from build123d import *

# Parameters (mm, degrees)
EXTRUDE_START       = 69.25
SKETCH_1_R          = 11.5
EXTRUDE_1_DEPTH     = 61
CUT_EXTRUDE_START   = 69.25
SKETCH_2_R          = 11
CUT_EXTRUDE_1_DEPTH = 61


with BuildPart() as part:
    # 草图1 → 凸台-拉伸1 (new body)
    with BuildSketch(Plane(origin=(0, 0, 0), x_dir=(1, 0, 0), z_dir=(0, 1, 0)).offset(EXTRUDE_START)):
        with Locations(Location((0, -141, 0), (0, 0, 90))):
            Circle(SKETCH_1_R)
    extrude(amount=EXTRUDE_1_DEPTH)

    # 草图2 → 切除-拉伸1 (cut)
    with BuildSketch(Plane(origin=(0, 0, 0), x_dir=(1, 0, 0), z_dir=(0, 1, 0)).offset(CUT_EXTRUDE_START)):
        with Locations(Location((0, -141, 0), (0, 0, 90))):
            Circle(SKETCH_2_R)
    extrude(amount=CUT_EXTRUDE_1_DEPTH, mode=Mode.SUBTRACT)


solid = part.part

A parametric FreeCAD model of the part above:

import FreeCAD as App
import Part
import Sketcher

doc = App.newDocument("Part")
params = doc.addObject("Spreadsheet::Sheet", "Params")
for row, (alias, value) in enumerate([
    ("sketch1_diameter", "23 mm"),
    ("pad1_length", "61 mm"),
    ("sketch2_diameter", "22 mm"),
    ("pocket1_length", "61 mm"),
], start=1):
    params.set(f"A{row}", alias)
    params.set(f"B{row}", "=" + value)
    params.setAlias(f"B{row}", alias)

body = doc.addObject("PartDesign::Body", "Body")

sketch1 = doc.addObject("Sketcher::SketchObject", "Sketch")
body.addObject(sketch1)
sketch1.AttachmentSupport = (doc.XZ_Plane, [""])
sketch1.MapMode = "FlatFace"
sketch1.AttachmentOffset = App.Placement(App.Vector(0, 0, -69.25), App.Rotation())
sketch1.addGeometry(Part.Circle(App.Vector(0, 141, 0), App.Vector(0, 0, 1), 12), False)
sketch1.addConstraint([
    Sketcher.Constraint("PointOnObject", 0, 3, -2),
    Sketcher.Constraint("Diameter", 0, 23.0),
    Sketcher.Constraint("DistanceY", -1, 1, 0, 3, 141.0),
])
sketch1.setExpression("Constraints[1]", "Params.sketch1_diameter")
pad1 = doc.addObject("PartDesign::Pad", "Pad")
body.addObject(pad1)
pad1.Profile = sketch1
pad1.setExpression("Length", "Params.pad1_length")
pad1.Reversed = True

sketch2 = doc.addObject("Sketcher::SketchObject", "Sketch001")
body.addObject(sketch2)
sketch2.AttachmentSupport = (doc.XZ_Plane, [""])
sketch2.MapMode = "FlatFace"
sketch2.AttachmentOffset = App.Placement(App.Vector(0, 0, -69.25), App.Rotation())
sketch2.addGeometry(Part.Circle(App.Vector(0, 141, 0), App.Vector(0, 0, 1), 11), False)
sketch2.addConstraint([
    Sketcher.Constraint("PointOnObject", 0, 3, -2),
    Sketcher.Constraint("Diameter", 0, 22.0),
    Sketcher.Constraint("DistanceY", -1, 1, 0, 3, 141.0),
])
sketch2.setExpression("Constraints[1]", "Params.sketch2_diameter")
pocket1 = doc.addObject("PartDesign::Pocket", "Pocket")
body.addObject(pocket1)
pocket1.Profile = sketch2
pocket1.setExpression("Length", "Params.pocket1_length")

doc.recompute()
